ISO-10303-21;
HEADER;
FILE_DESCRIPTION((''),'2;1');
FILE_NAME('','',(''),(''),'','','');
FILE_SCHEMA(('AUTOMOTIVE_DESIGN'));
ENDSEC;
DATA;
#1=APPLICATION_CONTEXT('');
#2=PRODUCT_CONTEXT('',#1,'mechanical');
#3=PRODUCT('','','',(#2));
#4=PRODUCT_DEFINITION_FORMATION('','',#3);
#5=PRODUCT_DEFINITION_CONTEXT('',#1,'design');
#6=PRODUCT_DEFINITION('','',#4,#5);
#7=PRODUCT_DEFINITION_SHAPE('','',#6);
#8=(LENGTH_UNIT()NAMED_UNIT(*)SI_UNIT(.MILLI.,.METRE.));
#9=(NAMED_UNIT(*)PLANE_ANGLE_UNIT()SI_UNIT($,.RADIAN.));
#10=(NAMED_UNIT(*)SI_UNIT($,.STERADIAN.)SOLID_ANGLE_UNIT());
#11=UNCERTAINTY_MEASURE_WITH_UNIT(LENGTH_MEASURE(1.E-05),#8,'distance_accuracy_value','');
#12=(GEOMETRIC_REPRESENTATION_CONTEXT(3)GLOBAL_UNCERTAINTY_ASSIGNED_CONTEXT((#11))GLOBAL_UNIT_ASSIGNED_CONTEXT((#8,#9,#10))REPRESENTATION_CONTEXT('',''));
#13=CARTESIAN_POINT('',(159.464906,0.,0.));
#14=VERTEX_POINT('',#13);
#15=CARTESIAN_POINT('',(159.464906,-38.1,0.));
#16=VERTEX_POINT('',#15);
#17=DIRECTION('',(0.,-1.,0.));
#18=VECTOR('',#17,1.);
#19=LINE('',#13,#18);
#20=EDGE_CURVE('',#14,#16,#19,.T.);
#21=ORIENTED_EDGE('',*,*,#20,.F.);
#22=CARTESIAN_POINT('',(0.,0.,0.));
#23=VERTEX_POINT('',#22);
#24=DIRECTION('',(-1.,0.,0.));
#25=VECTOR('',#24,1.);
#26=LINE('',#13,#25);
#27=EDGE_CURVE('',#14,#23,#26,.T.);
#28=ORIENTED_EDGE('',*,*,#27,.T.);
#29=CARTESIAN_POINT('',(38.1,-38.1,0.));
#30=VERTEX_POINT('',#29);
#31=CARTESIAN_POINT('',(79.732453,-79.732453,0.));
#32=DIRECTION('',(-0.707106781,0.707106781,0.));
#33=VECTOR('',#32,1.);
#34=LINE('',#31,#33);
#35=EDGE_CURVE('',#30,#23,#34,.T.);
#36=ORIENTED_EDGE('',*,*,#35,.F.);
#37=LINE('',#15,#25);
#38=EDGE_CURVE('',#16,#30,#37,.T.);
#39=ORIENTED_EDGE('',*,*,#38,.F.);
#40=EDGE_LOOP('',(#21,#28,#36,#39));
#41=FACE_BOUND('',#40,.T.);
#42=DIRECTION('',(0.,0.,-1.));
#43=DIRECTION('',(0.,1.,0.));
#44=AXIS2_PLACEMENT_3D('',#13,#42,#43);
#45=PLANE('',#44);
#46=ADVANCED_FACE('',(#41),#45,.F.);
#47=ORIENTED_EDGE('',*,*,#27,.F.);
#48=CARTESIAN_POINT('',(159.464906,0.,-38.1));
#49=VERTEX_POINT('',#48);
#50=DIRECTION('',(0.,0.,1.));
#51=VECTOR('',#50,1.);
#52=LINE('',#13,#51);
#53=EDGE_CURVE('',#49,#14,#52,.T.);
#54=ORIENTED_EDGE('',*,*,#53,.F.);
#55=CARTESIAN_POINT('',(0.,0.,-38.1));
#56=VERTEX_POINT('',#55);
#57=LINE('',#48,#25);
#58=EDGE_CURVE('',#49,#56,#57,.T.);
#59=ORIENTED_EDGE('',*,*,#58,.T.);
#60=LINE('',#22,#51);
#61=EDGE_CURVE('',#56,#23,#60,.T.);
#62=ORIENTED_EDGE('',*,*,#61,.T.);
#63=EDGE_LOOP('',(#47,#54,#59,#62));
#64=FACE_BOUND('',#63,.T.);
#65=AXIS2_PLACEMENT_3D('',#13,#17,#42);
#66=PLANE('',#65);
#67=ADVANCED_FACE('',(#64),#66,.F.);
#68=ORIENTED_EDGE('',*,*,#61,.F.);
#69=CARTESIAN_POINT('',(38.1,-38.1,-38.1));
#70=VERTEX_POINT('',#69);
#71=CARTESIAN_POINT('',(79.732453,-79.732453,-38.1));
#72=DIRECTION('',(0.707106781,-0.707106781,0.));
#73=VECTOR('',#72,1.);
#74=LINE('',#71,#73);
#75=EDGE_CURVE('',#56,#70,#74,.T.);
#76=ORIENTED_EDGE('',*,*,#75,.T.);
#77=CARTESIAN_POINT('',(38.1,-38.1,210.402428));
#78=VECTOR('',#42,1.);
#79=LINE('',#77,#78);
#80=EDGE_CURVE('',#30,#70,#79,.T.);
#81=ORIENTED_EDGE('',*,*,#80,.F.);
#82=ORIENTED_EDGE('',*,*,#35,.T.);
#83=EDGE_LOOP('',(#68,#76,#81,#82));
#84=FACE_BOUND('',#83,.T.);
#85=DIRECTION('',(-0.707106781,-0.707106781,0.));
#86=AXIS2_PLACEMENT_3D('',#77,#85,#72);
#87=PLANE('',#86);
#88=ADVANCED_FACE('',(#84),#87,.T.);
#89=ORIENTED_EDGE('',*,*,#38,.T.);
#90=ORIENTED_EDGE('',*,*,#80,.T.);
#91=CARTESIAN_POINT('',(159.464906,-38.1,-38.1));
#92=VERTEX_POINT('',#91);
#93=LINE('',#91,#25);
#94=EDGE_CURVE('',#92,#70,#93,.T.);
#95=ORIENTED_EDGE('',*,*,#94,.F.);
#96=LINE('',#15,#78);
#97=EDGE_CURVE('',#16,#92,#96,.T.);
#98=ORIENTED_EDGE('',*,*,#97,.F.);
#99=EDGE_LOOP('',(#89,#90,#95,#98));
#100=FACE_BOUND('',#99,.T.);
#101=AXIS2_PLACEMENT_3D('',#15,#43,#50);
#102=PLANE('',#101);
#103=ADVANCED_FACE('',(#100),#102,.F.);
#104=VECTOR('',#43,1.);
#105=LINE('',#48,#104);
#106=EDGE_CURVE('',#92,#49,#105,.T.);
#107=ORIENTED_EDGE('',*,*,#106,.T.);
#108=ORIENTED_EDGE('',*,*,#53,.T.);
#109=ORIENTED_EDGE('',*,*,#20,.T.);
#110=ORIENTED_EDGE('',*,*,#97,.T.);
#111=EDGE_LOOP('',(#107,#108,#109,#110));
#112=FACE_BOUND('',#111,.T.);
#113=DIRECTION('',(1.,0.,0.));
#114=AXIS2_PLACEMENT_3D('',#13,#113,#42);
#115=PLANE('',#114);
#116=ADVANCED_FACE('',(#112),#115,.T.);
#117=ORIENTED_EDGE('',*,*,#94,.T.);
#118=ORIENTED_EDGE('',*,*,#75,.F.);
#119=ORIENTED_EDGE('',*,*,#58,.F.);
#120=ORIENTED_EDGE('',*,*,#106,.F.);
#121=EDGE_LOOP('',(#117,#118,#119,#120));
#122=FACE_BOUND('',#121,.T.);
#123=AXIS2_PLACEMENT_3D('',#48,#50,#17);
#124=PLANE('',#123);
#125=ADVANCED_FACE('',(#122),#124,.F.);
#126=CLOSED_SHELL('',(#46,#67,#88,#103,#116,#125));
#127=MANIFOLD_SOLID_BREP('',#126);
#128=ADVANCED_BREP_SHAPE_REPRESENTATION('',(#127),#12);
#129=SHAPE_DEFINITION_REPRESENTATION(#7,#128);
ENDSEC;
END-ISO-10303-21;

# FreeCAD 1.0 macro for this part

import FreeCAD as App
import Part
import Sketcher
Q = App.Units.Quantity

doc = App.newDocument("Part")
body = doc.addObject("PartDesign::Body", "Body")

sketch1 = body.newObject("Sketcher::SketchObject", "Sketch")
sketch1.AttachmentSupport = (doc.getObject("YZ_Plane"), [""])
sketch1.MapMode = "FlatFace"
sketch1.addGeometry(Part.LineSegment(App.Vector(0, 0, 0), App.Vector(-38, 0, 0)), False)
sketch1.addGeometry(Part.LineSegment(App.Vector(-38, 0, 0), App.Vector(-38, -38, 0)), False)
sketch1.addGeometry(Part.LineSegment(App.Vector(-38, -38, 0), App.Vector(0, -38, 0)), False)
sketch1.addGeometry(Part.LineSegment(App.Vector(0, -38, 0), App.Vector(0, 0, 0)), False)
sketch1.addConstraint(Sketcher.Constraint("Coincident", 0, 2, 1, 1))
sketch1.addConstraint(Sketcher.Constraint("Coincident", 1, 2, 2, 1))
sketch1.addConstraint(Sketcher.Constraint("Coincident", 2, 2, 3, 1))
sketch1.addConstraint(Sketcher.Constraint("Coincident", 3, 2, 0, 1))
sketch1.addConstraint(Sketcher.Constraint("Horizontal", 0))
sketch1.addConstraint(Sketcher.Constraint("Vertical", 1))
sketch1.addConstraint(Sketcher.Constraint("Horizontal", 2))
sketch1.addConstraint(Sketcher.Constraint("Vertical", 3))
sketch1.addConstraint(Sketcher.Constraint("Coincident", 3, 2, -1, 1))
sketch1.addConstraint(Sketcher.Constraint("Equal", 2, 1))
sketch1.addConstraint(Sketcher.Constraint("DistanceX", 0, 2, 0, 1, Q("1.5 in")))
pad1 = body.newObject("PartDesign::Pad", "Pad")
pad1.Profile = sketch1
pad1.Length = 159.464906

sketch2 = body.newObject("Sketcher::SketchObject", "Sketch001")
sketch2.AttachmentSupport = (doc.getObject("XY_Plane"), [""])
sketch2.MapMode = "FlatFace"
sketch2.addGeometry(Part.LineSegment(App.Vector(-338, -38, 0), App.Vector(38, -38, 0)), False)
sketch2.addGeometry(Part.LineSegment(App.Vector(38, -38, 0), App.Vector(-239, 239, 0)), False)
sketch2.addGeometry(Part.LineSegment(App.Vector(-239, 239, 0), App.Vector(-875, 466, 0)), False)
sketch2.addGeometry(Part.LineSegment(App.Vector(-875, 466, 0), App.Vector(-974, 189, 0)), False)
sketch2.addGeometry(Part.LineSegment(App.Vector(-974, 189, 0), App.Vector(-338, -38, 0)), False)
sketch2.addConstraint(Sketcher.Constraint("Coincident", 0, 2, 1, 1))
sketch2.addConstraint(Sketcher.Constraint("Coincident", 1, 2, 2, 1))
sketch2.addConstraint(Sketcher.Constraint("Coincident", 2, 2, 3, 1))
sketch2.addConstraint(Sketcher.Constraint("Coincident", 3, 2, 4, 1))
sketch2.addConstraint(Sketcher.Constraint("Coincident", 4, 2, 0, 1))
sketch2.addConstraint(Sketcher.Constraint("Horizontal", 0))
sketch2.addConstraint(Sketcher.Constraint("Perpendicular", 2, 3))
sketch2.addConstraint(Sketcher.Constraint("Perpendicular", 3, 4))
sketch2.addConstraint(Sketcher.Constraint("Equal", 2, 4))
sketch2.addConstraint(Sketcher.Constraint("Angle", 1, Q("135 deg")))
sketch2.addConstraint(Sketcher.Constraint("DistanceX", -1, 1, 0, 2, Q("1.5 in")))
sketch2.addConstraint(Sketcher.Constraint("DistanceY", 0, 2, -1, 1, Q("1.5 in")))
sketch2.addConstraint(Sketcher.Constraint("DistanceX", 0, 1, 0, 2, 376.006488))
sketch2.addConstraint(Sketcher.Constraint("DistanceX", 1, 2, -1, 1, 238.935969))
sketch2.addConstraint(Sketcher.Constraint("DistanceY", -1, 1, 2, 2, 466.29576))
pocket1 = body.newObject("PartDesign::Pocket", "Pocket")
pocket1.Profile = sketch2
pocket1.Type = "ThroughAll"
pocket1.Midplane = True

doc.recompute()
